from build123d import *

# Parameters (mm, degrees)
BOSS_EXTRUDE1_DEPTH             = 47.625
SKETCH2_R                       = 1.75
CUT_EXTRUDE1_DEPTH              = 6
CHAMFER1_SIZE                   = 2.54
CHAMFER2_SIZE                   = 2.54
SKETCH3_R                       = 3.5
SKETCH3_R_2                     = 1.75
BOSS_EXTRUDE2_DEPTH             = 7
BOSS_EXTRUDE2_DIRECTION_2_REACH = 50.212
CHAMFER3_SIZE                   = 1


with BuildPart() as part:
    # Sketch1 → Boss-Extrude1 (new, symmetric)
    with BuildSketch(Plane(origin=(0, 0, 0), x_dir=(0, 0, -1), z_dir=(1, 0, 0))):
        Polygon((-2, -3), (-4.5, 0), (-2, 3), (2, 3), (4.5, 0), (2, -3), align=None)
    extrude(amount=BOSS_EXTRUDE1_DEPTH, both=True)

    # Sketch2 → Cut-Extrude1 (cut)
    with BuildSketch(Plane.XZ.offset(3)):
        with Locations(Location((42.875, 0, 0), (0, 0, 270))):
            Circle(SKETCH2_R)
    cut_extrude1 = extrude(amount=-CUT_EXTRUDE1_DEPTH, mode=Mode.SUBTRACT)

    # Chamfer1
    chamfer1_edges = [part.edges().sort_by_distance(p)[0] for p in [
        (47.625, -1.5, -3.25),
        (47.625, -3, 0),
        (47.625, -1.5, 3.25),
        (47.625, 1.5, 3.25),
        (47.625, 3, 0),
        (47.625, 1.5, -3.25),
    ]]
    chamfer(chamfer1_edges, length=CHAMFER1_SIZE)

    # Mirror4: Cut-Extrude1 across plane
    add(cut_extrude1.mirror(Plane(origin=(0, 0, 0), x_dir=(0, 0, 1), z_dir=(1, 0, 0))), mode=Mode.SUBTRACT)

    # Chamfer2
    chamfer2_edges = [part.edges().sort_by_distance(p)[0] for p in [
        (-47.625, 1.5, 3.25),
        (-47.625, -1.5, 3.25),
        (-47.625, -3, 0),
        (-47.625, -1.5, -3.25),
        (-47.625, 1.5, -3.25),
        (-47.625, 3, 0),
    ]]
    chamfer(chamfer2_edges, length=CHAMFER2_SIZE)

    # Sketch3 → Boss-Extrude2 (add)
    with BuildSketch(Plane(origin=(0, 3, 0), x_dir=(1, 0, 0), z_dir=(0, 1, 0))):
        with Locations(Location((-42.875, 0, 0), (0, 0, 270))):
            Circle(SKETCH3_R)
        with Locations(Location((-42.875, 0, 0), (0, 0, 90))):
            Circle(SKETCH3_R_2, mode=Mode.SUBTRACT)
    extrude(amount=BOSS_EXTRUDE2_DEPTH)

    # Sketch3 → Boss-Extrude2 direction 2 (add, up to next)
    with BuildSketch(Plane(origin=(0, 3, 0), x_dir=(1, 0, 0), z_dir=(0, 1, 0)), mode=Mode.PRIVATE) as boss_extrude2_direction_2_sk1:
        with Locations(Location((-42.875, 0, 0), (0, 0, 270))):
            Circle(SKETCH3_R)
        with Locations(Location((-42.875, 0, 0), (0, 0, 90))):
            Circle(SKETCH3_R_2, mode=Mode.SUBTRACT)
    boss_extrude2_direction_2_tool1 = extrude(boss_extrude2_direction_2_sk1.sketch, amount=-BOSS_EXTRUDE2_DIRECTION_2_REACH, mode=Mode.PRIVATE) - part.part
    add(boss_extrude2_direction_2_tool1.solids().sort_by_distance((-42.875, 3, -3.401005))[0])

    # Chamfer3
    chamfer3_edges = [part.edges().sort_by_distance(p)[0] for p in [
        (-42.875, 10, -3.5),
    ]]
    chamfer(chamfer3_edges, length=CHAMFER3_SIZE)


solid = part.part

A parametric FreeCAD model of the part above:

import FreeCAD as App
import Part
import Sketcher
from FreeCAD import Vector
Q = App.Units.Quantity


def edges_at(feature, points):
    """Names of the edges that pass closest to the given points."""
    edges = feature.Shape.Edges
    near = lambda p: min(range(len(edges)), key=lambda i: edges[i].distToShape(Part.Vertex(*p))[0])
    return sorted({f"Edge{near(p) + 1}" for p in points})


def add_polygon(sketch, points):
    """Adds a closed chain of lines whose ends are joined by coincident constraints."""
    first, n = sketch.GeometryCount, len(points)
    for a, b in zip(points, points[1:] + points[:1]):
        sketch.addGeometry(Part.LineSegment(App.Vector(*a, 0), App.Vector(*b, 0)), False)
    for i in range(n):
        sketch.addConstraint(Sketcher.Constraint("Coincident", first + i, 2, first + (i + 1) % n, 1))

doc = App.newDocument("Part")
body = doc.addObject("PartDesign::Body", "Body")

# Sketch on YZ plane
sketch1 = body.newObject("Sketcher::SketchObject", "Sketch")
sketch1.AttachmentSupport = (doc.getObject("YZ_Plane"), [""])
sketch1.MapMode = "FlatFace"
add_polygon(sketch1, [(0, 4.5), (-3, 2), (-3, -2), (0, -4.5), (3, -2), (3, 2)])  # lines 0-5
sketch1.addConstraint([
    Sketcher.Constraint("Vertical", 1),
    Sketcher.Constraint("Vertical", 4),
    Sketcher.Constraint("Symmetric", 0, 2, 3, 2, -1, 1),
    Sketcher.Constraint("Symmetric", 2, 2, 5, 2, -1, 1),
    Sketcher.Constraint("PointOnObject", 2, 2, -2),
    Sketcher.Constraint("Parallel", 2, 5),
    Sketcher.Constraint("Horizontal", 1, 2, 3, 2),
    Sketcher.Constraint("DistanceY", 1, 2, 1, 1, Q("4 mm")),
    Sketcher.Constraint("DistanceX", 0, 2, -1, 1, Q("3 mm")),
    Sketcher.Constraint("DistanceY", 2, 2, 5, 2, Q("9 mm")),
])
pad1 = body.newObject("PartDesign::Pad", "Pad")
pad1.Profile = sketch1
pad1.Length = 95.25
pad1.Midplane = True

# Sketch on XZ plane
sketch2 = body.newObject("Sketcher::SketchObject", "Sketch001")
sketch2.AttachmentSupport = (doc.getObject("XZ_Plane"), [""])
sketch2.MapMode = "FlatFace"
sketch2.AttachmentOffset = App.Placement(Vector(0, 0, 3), App.Rotation())
sketch2.addGeometry(Part.Circle(Vector(42.9, 0, 0), Vector(0, 0, 1), 1.8), False)
sketch2.addConstraint([
    Sketcher.Constraint("PointOnObject", 0, 3, -1),
    Sketcher.Constraint("Diameter", 0, Q("3.5 mm")),
    Sketcher.Constraint("DistanceX", -1, 1, 0, 3, Q("42.875 mm")),
])
pocket1 = body.newObject("PartDesign::Pocket", "Pocket")
pocket1.Profile = sketch2
pocket1.Length = 6
doc.recompute()

chamfer = body.newObject("PartDesign::Chamfer", "Chamfer")
chamfer.Base = (pocket1, edges_at(pocket1, [
    (47.625, -1.5, -3.25),
    (47.625, -3, 0),
    (47.625, -1.5, 3.25),
    (47.625, 1.5, 3.25),
    (47.625, 3, 0),
    (47.625, 1.5, -3.25),
]))
chamfer.Size = 2.54
doc.recompute()

mirrored = body.newObject("PartDesign::Mirrored", "Mirrored")
mirrored.Originals = [pocket1]
mirrored.MirrorPlane = (doc.getObject("YZ_Plane"), [""])
body.Tip = mirrored
doc.recompute()

chamfer2 = body.newObject("PartDesign::Chamfer", "Chamfer001")
chamfer2.Base = (mirrored, edges_at(mirrored, [
    (-47.625, 1.5, 3.25),
    (-47.625, -1.5, 3.25),
    (-47.625, -3, 0),
    (-47.625, -1.5, -3.25),
    (-47.625, 1.5, -3.25),
    (-47.625, 3, 0),
]))
chamfer2.Size = 2.54

# Sketch on XZ plane
sketch3 = body.newObject("Sketcher::SketchObject", "Sketch002")
sketch3.AttachmentSupport = (doc.getObject("XZ_Plane"), [""])
sketch3.MapMode = "FlatFace"
sketch3.AttachmentOffset = App.Placement(Vector(0, 0, -3), App.Rotation())
sketch3.addGeometry([
    Part.Circle(Vector(-42.9, 0, 0), Vector(0, 0, 1), 3.5),
    Part.Circle(Vector(-42.9, 0, 0), Vector(0, 0, 1), 1.8),
], False)
sketch3.addConstraint([
    Sketcher.Constraint("Coincident", 1, 3, 0, 3),
    Sketcher.Constraint("PointOnObject", 0, 3, -1),
    Sketcher.Constraint("Diameter", 0, Q("7 mm")),
    Sketcher.Constraint("Diameter", 1, Q("3.5 mm")),
    Sketcher.Constraint("DistanceX", 0, 3, -1, 1, Q("42.875 mm")),
])
pad2 = body.newObject("PartDesign::Pad", "Pad001")
pad2.Profile = sketch3
pad2.Length = 7
pad2.Reversed = True

# Sketch on XZ plane
sketch4 = body.newObject("Sketcher::SketchObject", "Sketch003")
sketch4.AttachmentSupport = (doc.getObject("XZ_Plane"), [""])
sketch4.MapMode = "FlatFace"
sketch4.AttachmentOffset = App.Placement(Vector(0, 0, -3), App.Rotation())
sketch4.addGeometry([
    Part.Circle(Vector(-42.9, 0, 0), Vector(0, 0, 1), 3.5),
    Part.Circle(Vector(-42.9, 0, 0), Vector(0, 0, 1), 1.8),
], False)
sketch4.addConstraint([
    Sketcher.Constraint("Coincident", 1, 3, 0, 3),
    Sketcher.Constraint("PointOnObject", 0, 3, -1),
    Sketcher.Constraint("Diameter", 0, Q("7 mm")),
    Sketcher.Constraint("Diameter", 1, Q("3.5 mm")),
    Sketcher.Constraint("DistanceX", 0, 3, -1, 1, Q("42.875 mm")),
])
pad3 = body.newObject("PartDesign::Pad", "Pad002")
pad3.Profile = sketch4
pad3.Length = 1.8
doc.recompute()

chamfer3 = body.newObject("PartDesign::Chamfer", "Chamfer002")
chamfer3.Base = (pad3, edges_at(pad3, [(-42.875, 10, -3.5)]))
chamfer3.Size = 1

doc.recompute()
